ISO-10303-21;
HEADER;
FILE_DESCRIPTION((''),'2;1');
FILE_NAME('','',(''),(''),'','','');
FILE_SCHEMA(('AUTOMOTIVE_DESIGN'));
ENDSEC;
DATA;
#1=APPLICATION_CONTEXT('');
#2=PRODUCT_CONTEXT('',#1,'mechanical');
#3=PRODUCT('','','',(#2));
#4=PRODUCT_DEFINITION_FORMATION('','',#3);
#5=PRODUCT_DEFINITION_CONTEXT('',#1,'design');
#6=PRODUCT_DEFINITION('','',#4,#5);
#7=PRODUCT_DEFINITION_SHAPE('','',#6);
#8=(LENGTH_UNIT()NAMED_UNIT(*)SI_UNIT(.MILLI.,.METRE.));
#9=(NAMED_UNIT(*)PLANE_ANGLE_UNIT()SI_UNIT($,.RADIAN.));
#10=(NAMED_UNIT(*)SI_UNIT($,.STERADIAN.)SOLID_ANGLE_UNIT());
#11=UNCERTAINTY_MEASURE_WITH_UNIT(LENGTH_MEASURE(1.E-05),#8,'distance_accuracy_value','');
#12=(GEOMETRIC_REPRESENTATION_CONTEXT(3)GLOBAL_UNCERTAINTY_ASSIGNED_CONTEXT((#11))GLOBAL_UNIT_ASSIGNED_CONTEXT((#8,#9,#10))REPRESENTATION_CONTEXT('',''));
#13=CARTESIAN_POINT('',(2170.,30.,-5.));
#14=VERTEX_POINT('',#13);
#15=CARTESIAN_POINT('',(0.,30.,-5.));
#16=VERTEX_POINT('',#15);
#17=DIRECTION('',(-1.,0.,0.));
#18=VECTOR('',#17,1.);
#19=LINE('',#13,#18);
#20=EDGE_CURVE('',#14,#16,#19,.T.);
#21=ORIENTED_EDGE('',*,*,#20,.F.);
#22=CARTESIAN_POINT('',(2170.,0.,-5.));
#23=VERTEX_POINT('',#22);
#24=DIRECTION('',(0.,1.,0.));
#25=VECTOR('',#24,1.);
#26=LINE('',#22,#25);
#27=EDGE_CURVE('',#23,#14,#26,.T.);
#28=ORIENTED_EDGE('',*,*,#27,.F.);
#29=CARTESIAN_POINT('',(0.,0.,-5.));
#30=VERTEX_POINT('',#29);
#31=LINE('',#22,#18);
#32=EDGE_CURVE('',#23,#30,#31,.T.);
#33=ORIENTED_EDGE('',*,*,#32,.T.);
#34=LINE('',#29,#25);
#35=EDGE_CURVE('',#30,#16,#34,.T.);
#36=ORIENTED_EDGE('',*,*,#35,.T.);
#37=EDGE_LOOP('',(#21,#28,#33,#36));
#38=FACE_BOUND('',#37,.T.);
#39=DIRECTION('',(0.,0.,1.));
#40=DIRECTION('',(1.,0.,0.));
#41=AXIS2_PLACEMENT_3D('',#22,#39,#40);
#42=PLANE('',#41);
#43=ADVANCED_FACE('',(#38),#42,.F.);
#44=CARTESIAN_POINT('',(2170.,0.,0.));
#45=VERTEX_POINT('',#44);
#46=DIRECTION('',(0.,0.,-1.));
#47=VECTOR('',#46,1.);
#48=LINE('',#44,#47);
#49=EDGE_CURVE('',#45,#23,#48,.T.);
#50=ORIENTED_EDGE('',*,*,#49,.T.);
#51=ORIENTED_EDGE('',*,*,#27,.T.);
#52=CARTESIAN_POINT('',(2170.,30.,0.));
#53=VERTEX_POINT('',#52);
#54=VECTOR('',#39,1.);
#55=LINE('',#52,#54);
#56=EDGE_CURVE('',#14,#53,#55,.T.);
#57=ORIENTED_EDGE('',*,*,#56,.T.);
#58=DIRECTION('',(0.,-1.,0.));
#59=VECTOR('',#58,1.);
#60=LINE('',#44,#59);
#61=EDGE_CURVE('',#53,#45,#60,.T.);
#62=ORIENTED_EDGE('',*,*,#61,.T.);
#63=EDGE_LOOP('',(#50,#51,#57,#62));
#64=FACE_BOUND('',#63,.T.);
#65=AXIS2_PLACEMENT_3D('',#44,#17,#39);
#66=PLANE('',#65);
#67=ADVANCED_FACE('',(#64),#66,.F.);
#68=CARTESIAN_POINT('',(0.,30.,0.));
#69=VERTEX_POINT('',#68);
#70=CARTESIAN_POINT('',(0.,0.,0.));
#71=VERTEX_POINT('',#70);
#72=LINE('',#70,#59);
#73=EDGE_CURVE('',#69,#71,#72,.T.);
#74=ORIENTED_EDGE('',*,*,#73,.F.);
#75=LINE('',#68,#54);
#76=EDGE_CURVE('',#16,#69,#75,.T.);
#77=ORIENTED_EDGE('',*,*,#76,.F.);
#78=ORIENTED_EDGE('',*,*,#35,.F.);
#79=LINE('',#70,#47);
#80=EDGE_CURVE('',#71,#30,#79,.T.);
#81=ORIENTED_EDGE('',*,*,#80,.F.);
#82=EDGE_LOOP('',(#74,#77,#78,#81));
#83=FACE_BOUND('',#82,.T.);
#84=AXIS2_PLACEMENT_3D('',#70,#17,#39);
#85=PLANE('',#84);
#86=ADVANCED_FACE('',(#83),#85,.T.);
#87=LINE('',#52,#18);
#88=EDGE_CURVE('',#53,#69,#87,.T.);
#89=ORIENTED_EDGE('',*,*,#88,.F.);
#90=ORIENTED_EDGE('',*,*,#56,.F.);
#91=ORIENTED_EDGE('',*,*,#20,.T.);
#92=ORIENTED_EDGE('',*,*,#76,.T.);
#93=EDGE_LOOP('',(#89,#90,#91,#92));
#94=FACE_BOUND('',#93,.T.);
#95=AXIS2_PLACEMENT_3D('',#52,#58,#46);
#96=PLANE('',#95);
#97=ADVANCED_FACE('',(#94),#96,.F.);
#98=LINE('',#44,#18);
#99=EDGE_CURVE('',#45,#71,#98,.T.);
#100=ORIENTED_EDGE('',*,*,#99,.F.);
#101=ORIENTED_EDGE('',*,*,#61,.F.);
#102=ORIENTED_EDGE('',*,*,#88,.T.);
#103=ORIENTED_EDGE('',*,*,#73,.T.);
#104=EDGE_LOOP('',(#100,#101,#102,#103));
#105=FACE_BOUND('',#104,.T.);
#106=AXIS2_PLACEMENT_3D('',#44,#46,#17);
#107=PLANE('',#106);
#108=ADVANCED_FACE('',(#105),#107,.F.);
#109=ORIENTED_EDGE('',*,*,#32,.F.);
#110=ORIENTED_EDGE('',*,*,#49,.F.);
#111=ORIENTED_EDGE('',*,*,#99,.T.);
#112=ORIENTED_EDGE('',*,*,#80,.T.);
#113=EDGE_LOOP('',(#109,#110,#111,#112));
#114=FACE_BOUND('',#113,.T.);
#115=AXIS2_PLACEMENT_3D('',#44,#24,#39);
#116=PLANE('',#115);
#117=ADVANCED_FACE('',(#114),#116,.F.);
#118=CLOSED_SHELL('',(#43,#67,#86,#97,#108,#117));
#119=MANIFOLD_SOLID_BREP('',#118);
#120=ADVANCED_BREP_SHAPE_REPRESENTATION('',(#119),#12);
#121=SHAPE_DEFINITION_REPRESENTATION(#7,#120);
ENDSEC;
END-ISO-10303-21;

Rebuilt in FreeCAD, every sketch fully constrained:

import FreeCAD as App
import Part
import Sketcher
Q = App.Units.Quantity

doc = App.newDocument("Part")
body = doc.addObject("PartDesign::Body", "Body")

# Sketch on YZ plane
sketch1 = doc.addObject("Sketcher::SketchObject", "Sketch")
body.addObject(sketch1)
sketch1.AttachmentSupport = (doc.YZ_Plane, [""])
sketch1.MapMode = "FlatFace"
sketch1.addGeometry([
    Part.LineSegment(App.Vector(30, 0, 0), App.Vector(0, 0, 0)),
    Part.LineSegment(App.Vector(0, 0, 0), App.Vector(0, -5, 0)),
    Part.LineSegment(App.Vector(0, -5, 0), App.Vector(30, -5, 0)),
    Part.LineSegment(App.Vector(30, -5, 0), App.Vector(30, 0, 0)),
], False)
sketch1.addConstraint([
    Sketcher.Constraint("Coincident", 0, 2, 1, 1),
    Sketcher.Constraint("Coincident", 1, 2, 2, 1),
    Sketcher.Constraint("Coincident", 2, 2, 3, 1),
    Sketcher.Constraint("Coincident", 3, 2, 0, 1),
    Sketcher.Constraint("Horizontal", 0),
    Sketcher.Constraint("Vertical", 1),
    Sketcher.Constraint("Horizontal", 2),
    Sketcher.Constraint("Vertical", 3),
    Sketcher.Constraint("Coincident", 0, 2, -1, 1),
    Sketcher.Constraint("DistanceX", 0, 2, 0, 1, Q("30 mm")),
    Sketcher.Constraint("DistanceY", 1, 2, 1, 1, Q("5 mm")),
])
pad1 = doc.addObject("PartDesign::Pad", "Pad")
body.addObject(pad1)
pad1.Profile = sketch1
pad1.Length = 2170

doc.recompute()
